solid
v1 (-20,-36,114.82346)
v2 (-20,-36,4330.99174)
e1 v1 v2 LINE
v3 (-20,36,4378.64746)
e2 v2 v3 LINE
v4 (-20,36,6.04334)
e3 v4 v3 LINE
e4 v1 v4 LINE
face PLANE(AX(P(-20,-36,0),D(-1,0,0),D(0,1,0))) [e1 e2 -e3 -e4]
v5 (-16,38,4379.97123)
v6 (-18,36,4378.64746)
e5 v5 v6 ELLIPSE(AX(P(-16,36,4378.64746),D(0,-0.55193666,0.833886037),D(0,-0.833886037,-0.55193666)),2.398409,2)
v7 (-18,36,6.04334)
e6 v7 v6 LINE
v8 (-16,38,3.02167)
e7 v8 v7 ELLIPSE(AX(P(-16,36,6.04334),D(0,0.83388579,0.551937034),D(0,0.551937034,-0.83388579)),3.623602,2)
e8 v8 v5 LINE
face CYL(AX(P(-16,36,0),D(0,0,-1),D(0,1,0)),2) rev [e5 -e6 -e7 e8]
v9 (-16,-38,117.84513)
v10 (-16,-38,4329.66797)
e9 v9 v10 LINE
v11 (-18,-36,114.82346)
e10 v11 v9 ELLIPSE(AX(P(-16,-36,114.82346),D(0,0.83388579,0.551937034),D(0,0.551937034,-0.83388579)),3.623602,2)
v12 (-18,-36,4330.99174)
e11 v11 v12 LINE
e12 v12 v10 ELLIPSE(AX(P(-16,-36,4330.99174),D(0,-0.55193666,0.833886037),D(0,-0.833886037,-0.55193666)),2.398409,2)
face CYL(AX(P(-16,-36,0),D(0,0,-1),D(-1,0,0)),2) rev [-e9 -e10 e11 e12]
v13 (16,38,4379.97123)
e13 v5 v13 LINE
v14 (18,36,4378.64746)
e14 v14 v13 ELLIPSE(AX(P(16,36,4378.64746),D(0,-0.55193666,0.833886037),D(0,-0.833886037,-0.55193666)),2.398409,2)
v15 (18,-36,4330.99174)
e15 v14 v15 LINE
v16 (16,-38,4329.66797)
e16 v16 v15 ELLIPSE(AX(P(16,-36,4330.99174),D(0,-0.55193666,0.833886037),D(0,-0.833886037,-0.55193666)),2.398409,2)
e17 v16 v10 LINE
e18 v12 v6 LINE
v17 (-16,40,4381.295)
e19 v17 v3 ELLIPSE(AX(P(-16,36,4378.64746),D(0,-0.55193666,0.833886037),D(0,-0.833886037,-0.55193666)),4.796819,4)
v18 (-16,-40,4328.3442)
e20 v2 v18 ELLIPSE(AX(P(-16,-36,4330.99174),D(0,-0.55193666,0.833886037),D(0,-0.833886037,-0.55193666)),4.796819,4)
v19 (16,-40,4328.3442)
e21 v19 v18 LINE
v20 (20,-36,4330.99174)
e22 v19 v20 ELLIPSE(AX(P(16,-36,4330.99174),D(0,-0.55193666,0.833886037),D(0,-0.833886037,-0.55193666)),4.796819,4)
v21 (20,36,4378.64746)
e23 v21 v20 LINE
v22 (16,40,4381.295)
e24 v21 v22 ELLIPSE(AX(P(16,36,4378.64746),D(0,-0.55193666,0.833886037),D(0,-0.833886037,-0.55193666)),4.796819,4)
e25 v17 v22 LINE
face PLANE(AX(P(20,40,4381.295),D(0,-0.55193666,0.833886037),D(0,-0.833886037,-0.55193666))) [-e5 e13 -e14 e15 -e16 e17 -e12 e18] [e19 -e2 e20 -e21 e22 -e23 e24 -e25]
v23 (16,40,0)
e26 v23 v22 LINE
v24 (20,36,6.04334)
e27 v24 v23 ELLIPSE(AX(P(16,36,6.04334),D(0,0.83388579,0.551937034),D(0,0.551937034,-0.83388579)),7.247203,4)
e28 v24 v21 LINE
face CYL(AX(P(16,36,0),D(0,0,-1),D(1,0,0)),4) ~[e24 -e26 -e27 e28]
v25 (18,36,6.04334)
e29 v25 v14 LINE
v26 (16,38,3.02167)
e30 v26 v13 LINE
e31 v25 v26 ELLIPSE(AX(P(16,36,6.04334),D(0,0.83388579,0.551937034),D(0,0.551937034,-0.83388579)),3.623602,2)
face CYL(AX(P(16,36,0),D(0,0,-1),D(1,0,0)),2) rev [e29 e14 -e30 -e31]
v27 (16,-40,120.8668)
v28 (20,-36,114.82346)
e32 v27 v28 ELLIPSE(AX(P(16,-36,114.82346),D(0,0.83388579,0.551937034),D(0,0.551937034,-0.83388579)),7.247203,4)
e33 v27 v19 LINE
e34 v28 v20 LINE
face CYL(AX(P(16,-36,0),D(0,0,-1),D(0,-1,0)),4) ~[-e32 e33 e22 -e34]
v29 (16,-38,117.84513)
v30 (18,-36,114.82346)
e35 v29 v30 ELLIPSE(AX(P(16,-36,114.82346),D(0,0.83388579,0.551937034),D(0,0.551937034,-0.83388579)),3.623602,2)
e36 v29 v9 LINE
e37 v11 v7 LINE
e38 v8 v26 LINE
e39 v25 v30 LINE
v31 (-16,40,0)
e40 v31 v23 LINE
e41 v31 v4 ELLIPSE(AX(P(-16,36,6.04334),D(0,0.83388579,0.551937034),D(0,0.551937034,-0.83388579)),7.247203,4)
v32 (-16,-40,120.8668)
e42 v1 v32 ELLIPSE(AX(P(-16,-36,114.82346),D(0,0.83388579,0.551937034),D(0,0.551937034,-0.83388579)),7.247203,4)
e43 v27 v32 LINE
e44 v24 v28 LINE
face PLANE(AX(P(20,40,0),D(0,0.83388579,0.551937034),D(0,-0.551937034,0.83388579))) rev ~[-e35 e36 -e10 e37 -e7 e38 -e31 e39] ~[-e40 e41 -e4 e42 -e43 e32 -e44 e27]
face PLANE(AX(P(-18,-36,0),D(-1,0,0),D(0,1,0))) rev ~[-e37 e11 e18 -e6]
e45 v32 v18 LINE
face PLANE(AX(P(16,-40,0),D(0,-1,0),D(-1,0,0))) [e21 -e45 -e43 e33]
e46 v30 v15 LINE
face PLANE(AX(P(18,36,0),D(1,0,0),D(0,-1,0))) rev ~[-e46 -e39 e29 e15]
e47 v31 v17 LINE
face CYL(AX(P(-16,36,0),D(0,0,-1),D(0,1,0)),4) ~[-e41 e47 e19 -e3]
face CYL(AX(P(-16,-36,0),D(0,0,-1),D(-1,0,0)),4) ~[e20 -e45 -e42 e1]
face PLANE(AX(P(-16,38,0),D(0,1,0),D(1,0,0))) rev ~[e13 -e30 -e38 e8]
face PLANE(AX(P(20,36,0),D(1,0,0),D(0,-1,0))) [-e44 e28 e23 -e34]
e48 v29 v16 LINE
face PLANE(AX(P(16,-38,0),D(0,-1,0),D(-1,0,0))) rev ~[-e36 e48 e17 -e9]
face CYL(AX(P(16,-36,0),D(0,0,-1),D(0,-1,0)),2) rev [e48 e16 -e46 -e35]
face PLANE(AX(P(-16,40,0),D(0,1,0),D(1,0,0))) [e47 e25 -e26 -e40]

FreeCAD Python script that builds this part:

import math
import FreeCAD as App
import Part
import Sketcher

V = App.Vector
Q = App.Units.Quantity


def add_polygon(sketch, points):
    """Adds a closed chain of lines whose ends are joined by coincident constraints."""
    first, n = sketch.GeometryCount, len(points)
    for a, b in zip(points, points[1:] + points[:1]):
        sketch.addGeometry(Part.LineSegment(App.Vector(*a, 0), App.Vector(*b, 0)), False)
    for i in range(n):
        sketch.addConstraint(Sketcher.Constraint("Coincident", first + i, 2, first + (i + 1) % n, 1))

doc = App.newDocument("Part")
body = doc.addObject("PartDesign::Body", "Body")

# Sketch on XY plane
sketch1 = doc.addObject("Sketcher::SketchObject", "Sketch")
body.addObject(sketch1)
sketch1.AttachmentSupport = (doc.XY_Plane, [""])
sketch1.MapMode = "FlatFace"
sketch1.addGeometry(Part.LineSegment(V(-20, 36, 0), V(-20, -36, 0)), False)
sketch1.addGeometry(Part.ArcOfCircle(Part.Circle(V(-16, -36, 0), V(0, 0, 1), 4), math.radians(180), math.radians(270)), False)
sketch1.addGeometry(Part.LineSegment(V(-16, -40, 0), V(16, -40, 0)), False)
sketch1.addGeometry(Part.ArcOfCircle(Part.Circle(V(16, -36, 0), V(0, 0, 1), 4), math.radians(-90), math.radians(0)), False)
sketch1.addGeometry(Part.LineSegment(V(20, -36, 0), V(20, 36, 0)), False)
sketch1.addGeometry(Part.ArcOfCircle(Part.Circle(V(16, 36, 0), V(0, 0, 1), 4), math.radians(0), math.radians(90)), False)
sketch1.addGeometry(Part.LineSegment(V(16, 40, 0), V(-16, 40, 0)), False)
sketch1.addGeometry(Part.ArcOfCircle(Part.Circle(V(-16, 36, 0), V(0, 0, 1), 4), math.radians(90), math.radians(180)), False)
sketch1.addGeometry(Part.ArcOfCircle(Part.Circle(V(-16, 36, 0), V(0, 0, 1), 2), math.radians(90), math.radians(180)), False)
sketch1.addGeometry(Part.LineSegment(V(-16, 38, 0), V(16, 38, 0)), False)
sketch1.addGeometry(Part.ArcOfCircle(Part.Circle(V(16, 36, 0), V(0, 0, 1), 2), math.radians(0), math.radians(90)), False)
sketch1.addGeometry(Part.LineSegment(V(18, 36, 0), V(18, -36, 0)), False)
sketch1.addGeometry(Part.ArcOfCircle(Part.Circle(V(16, -36, 0), V(0, 0, 1), 2), math.radians(-90), math.radians(0)), False)
sketch1.addGeometry(Part.LineSegment(V(16, -38, 0), V(-16, -38, 0)), False)
sketch1.addGeometry(Part.ArcOfCircle(Part.Circle(V(-16, -36, 0), V(0, 0, 1), 2), math.radians(180), math.radians(270)), False)
sketch1.addGeometry(Part.LineSegment(V(-18, -36, 0), V(-18, 36, 0)), False)
sketch1.addConstraint(Sketcher.Constraint("Tangent", 0, 2, 1, 1))
sketch1.addConstraint(Sketcher.Constraint("Tangent", 1, 2, 2, 1))
sketch1.addConstraint(Sketcher.Constraint("Tangent", 2, 2, 3, 1))
sketch1.addConstraint(Sketcher.Constraint("Tangent", 3, 2, 4, 1))
sketch1.addConstraint(Sketcher.Constraint("Tangent", 4, 2, 5, 1))
sketch1.addConstraint(Sketcher.Constraint("Tangent", 5, 2, 6, 1))
sketch1.addConstraint(Sketcher.Constraint("Tangent", 6, 2, 7, 1))
sketch1.addConstraint(Sketcher.Constraint("Tangent", 7, 2, 0, 1))
sketch1.addConstraint(Sketcher.Constraint("Tangent", 8, 1, 9, 1))
sketch1.addConstraint(Sketcher.Constraint("Tangent", 9, 2, 10, 2))
sketch1.addConstraint(Sketcher.Constraint("Tangent", 10, 1, 11, 1))
sketch1.addConstraint(Sketcher.Constraint("Tangent", 11, 2, 12, 2))
sketch1.addConstraint(Sketcher.Constraint("Tangent", 12, 1, 13, 1))
sketch1.addConstraint(Sketcher.Constraint("Tangent", 13, 2, 14, 2))
sketch1.addConstraint(Sketcher.Constraint("Tangent", 14, 1, 15, 1))
sketch1.addConstraint(Sketcher.Constraint("Tangent", 15, 2, 8, 2))
sketch1.addConstraint(Sketcher.Constraint("Vertical", 0))
sketch1.addConstraint(Sketcher.Constraint("Horizontal", 2))
sketch1.addConstraint(Sketcher.Constraint("Vertical", 4))
sketch1.addConstraint(Sketcher.Constraint("Horizontal", 6))
sketch1.addConstraint(Sketcher.Constraint("Horizontal", 9))
sketch1.addConstraint(Sketcher.Constraint("Vertical", 11))
sketch1.addConstraint(Sketcher.Constraint("Horizontal", 13))
sketch1.addConstraint(Sketcher.Constraint("Vertical", 15))
sketch1.addConstraint(Sketcher.Constraint("Coincident", 8, 3, 7, 3))
sketch1.addConstraint(Sketcher.Constraint("Coincident", 10, 3, 5, 3))
sketch1.addConstraint(Sketcher.Constraint("Coincident", 12, 3, 3, 3))
sketch1.addConstraint(Sketcher.Constraint("Equal", 1, 3))
sketch1.addConstraint(Sketcher.Constraint("Equal", 3, 5))
sketch1.addConstraint(Sketcher.Constraint("Equal", 5, 7))
sketch1.addConstraint(Sketcher.Constraint("Equal", 12, 14))
sketch1.addConstraint(Sketcher.Constraint("Symmetric", 1, 3, 5, 3, -1, 1))
sketch1.addConstraint(Sketcher.Constraint("Radius", 1, 4.0))
sketch1.addConstraint(Sketcher.Constraint("Radius", 8, 2.0))
sketch1.addConstraint(Sketcher.Constraint("DistanceX", 0, 2, -1, 1, 20.0))
sketch1.addConstraint(Sketcher.Constraint("DistanceY", 1, 2, -1, 1, 40.0))
pad1 = doc.addObject("PartDesign::Pad", "Pad")
body.addObject(pad1)
pad1.Profile = sketch1
pad1.Length = 4381.295

# Sketch on YZ plane
sketch2 = doc.addObject("Sketcher::SketchObject", "Sketch001")
body.addObject(sketch2)
sketch2.AttachmentSupport = (doc.YZ_Plane, [""])
sketch2.MapMode = "FlatFace"
sketch2.AttachmentOffset = App.Placement(V(0, 0, 20), App.Rotation())
add_polygon(sketch2, [(-40, 0), (40, 0), (-40, 121)])  # lines 0-2
add_polygon(sketch2, [(-40, 4328), (40, 4381), (-40, 4381)])  # lines 3-5
sketch2.addConstraint(Sketcher.Constraint("Horizontal", 0))
sketch2.addConstraint(Sketcher.Constraint("Vertical", 2))
sketch2.addConstraint(Sketcher.Constraint("Horizontal", 4))
sketch2.addConstraint(Sketcher.Constraint("Vertical", 5))
sketch2.addConstraint(Sketcher.Constraint("Symmetric", 0, 2, 2, 2, -1, 1))
sketch2.addConstraint(Sketcher.Constraint("Perpendicular", 1, 3))
sketch2.addConstraint(Sketcher.Constraint("Vertical", 0, 2, 3, 2))
sketch2.addConstraint(Sketcher.Constraint("Vertical", 2, 2, 4, 2))
sketch2.addConstraint(Sketcher.Constraint("Angle", 3, Q("33.5 deg")))
sketch2.addConstraint(Sketcher.Constraint("DistanceX", 0, 1, 0, 2, 80.0))
sketch2.addConstraint(Sketcher.Constraint("DistanceY", -1, 1, 3, 2, 4381.295))
pocket1 = doc.addObject("PartDesign::Pocket", "Pocket")
body.addObject(pocket1)
pocket1.Profile = sketch2
pocket1.Type = "ThroughAll"

doc.recompute()
